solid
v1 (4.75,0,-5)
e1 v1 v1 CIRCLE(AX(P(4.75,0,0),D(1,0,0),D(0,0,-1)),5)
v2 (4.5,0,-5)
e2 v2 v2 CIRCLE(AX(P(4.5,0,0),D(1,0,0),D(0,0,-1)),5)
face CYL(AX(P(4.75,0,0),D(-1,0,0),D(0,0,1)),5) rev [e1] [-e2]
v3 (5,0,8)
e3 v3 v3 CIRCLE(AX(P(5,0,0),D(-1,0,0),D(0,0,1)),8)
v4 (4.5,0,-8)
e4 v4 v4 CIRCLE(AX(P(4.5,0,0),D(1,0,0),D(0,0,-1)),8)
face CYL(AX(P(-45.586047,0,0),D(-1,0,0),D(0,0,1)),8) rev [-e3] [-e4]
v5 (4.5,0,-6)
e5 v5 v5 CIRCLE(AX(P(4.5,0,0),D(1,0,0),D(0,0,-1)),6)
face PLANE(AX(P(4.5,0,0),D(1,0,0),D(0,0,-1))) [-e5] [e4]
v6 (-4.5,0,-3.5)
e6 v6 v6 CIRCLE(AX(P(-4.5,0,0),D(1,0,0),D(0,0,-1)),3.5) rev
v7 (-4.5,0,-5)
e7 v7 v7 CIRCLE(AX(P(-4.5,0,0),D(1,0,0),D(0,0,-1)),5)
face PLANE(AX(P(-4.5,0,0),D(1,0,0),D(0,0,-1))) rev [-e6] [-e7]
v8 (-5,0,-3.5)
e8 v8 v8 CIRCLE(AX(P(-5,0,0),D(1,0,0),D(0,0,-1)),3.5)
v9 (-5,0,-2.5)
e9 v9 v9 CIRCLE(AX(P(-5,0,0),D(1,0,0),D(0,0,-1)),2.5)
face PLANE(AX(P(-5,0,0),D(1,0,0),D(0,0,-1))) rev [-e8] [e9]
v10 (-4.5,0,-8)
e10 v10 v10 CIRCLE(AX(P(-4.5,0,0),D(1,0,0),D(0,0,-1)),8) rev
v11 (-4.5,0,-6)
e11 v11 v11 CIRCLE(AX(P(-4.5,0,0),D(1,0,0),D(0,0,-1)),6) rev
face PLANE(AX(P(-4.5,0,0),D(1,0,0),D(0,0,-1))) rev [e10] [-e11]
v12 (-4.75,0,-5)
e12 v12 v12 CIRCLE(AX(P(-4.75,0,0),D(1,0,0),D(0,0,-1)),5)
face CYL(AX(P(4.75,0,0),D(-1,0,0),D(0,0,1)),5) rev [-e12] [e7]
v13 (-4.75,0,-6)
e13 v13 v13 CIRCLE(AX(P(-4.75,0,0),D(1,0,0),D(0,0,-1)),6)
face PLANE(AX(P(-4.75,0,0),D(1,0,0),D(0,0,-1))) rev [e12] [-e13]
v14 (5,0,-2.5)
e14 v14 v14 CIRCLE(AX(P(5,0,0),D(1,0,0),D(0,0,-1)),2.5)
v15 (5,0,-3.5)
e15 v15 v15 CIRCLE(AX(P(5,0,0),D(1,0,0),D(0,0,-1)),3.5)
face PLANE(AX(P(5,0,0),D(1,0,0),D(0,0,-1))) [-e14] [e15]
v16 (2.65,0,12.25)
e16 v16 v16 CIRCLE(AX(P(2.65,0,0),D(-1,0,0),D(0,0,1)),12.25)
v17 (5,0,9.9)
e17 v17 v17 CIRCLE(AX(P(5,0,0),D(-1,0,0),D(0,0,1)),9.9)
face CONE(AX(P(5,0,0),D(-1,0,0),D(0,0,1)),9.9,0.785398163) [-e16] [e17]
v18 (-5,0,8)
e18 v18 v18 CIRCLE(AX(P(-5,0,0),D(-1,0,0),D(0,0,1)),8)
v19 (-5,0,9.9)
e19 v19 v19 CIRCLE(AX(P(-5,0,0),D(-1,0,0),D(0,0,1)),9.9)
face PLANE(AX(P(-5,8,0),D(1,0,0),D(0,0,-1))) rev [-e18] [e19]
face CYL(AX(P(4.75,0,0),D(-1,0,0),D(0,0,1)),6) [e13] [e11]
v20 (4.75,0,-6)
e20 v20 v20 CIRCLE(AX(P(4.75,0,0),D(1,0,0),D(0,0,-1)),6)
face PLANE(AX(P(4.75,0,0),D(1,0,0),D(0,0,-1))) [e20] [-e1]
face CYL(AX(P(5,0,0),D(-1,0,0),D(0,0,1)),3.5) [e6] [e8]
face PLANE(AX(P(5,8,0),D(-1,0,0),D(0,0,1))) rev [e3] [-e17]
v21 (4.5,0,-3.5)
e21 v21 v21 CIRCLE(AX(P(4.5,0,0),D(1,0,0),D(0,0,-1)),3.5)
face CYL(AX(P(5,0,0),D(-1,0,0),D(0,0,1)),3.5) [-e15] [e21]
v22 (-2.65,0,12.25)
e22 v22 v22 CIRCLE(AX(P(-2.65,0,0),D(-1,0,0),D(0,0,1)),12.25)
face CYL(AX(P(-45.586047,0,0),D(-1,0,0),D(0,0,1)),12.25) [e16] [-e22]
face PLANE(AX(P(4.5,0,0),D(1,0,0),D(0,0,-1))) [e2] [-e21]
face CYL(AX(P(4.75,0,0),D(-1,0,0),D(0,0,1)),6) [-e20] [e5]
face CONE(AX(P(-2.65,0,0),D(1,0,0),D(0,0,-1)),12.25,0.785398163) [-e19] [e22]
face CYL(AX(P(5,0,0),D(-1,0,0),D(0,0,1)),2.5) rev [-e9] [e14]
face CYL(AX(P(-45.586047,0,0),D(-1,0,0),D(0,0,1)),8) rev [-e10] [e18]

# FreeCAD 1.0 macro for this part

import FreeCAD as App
import Part
import Sketcher
from FreeCAD import Vector
Q = App.Units.Quantity


def add_polygon(sketch, points):
    """Adds a closed chain of lines whose ends are joined by coincident constraints."""
    first, n = sketch.GeometryCount, len(points)
    for a, b in zip(points, points[1:] + points[:1]):
        sketch.addGeometry(Part.LineSegment(App.Vector(*a, 0), App.Vector(*b, 0)), False)
    for i in range(n):
        sketch.addConstraint(Sketcher.Constraint("Coincident", first + i, 2, first + (i + 1) % n, 1))

doc = App.newDocument("Part")
params = doc.addObject("Spreadsheet::Sheet", "Params")
for row, (alias, value) in enumerate([
    ("sketch1_width", "10 mm"),
    ("sketch1_width2", "5.3 mm"),
    ("sketch1_height", "1.9 mm"),
    ("revolution_angle", "360 deg"),
    ("sketch2_diameter", "16 mm"),
    ("sketch2_diameter2", "12 mm"),
    ("pad1_length", "9 mm"),
    ("sketch3_diameter", "12 mm"),
    ("sketch3_diameter2", "10 mm"),
    ("pad2_length", "9.5 mm"),
    ("sketch4_diameter", "10 mm"),
    ("sketch4_diameter2", "7 mm"),
    ("pad3_length", "9 mm"),
    ("sketch5_diameter", "7 mm"),
    ("sketch5_diameter2", "5 mm"),
    ("pad4_length", "10 mm"),
], start=1):
    params.set(f"A{row}", alias)
    params.set(f"B{row}", "=" + value)
    params.setAlias(f"B{row}", alias)

body = doc.addObject("PartDesign::Body", "Body")

sketch1 = body.newObject("Sketcher::SketchObject", "Sketch")
sketch1.AttachmentSupport = (doc.getObject("XY_Plane"), [""])
sketch1.MapMode = "FlatFace"
add_polygon(sketch1, [(-5, 9.9), (-5, 8), (5, 8), (5, 9.9), (2.65, 12.25), (-2.65, 12.25)])
sketch1.addConstraint(Sketcher.Constraint("Vertical", 0))
sketch1.addConstraint(Sketcher.Constraint("Horizontal", 1))
sketch1.addConstraint(Sketcher.Constraint("Vertical", 2))
sketch1.addConstraint(Sketcher.Constraint("Horizontal", 4))
sketch1.addConstraint(Sketcher.Constraint("Symmetric", 2, 2, 5, 2, -2))
sketch1.addConstraint(Sketcher.Constraint("Perpendicular", 3, 5))
sketch1.addConstraint(Sketcher.Constraint("Equal", 3, 5))
sketch1.addConstraint(Sketcher.Constraint("DistanceX", 1, 1, 1, 2, Q("10 mm")))
sketch1.addConstraint(Sketcher.Constraint("DistanceX", 4, 2, 4, 1, Q("5.3 mm")))
sketch1.addConstraint(Sketcher.Constraint("DistanceY", 0, 2, 0, 1, Q("1.9 mm")))
sketch1.addConstraint(Sketcher.Constraint("DistanceY", -1, 1, 0, 2, Q("8 mm")))
sketch1.setExpression("Constraints[13]", "Params.sketch1_width")
sketch1.setExpression("Constraints[14]", "Params.sketch1_width2")
sketch1.setExpression("Constraints[15]", "Params.sketch1_height")
revolution = body.newObject("PartDesign::Revolution", "Revolution")
revolution.Profile = sketch1
revolution.ReferenceAxis = (sketch1, ["H_Axis"])
revolution.setExpression("Angle", "Params.revolution_angle")

sketch2 = body.newObject("Sketcher::SketchObject", "Sketch001")
sketch2.AttachmentSupport = (doc.getObject("YZ_Plane"), [""])
sketch2.MapMode = "FlatFace"
sketch2.addGeometry(Part.Circle(Vector(0, 0, 0), Vector(0, 0, 1), 8), False)
sketch2.addGeometry(Part.Circle(Vector(0, 0, 0), Vector(0, 0, 1), 6), False)
sketch2.addConstraint(Sketcher.Constraint("Coincident", 0, 3, -1, 1))
sketch2.addConstraint(Sketcher.Constraint("Coincident", 1, 3, -1, 1))
sketch2.addConstraint(Sketcher.Constraint("Diameter", 0, Q("16 mm")))
sketch2.addConstraint(Sketcher.Constraint("Diameter", 1, Q("12 mm")))
sketch2.setExpression("Constraints[2]", "Params.sketch2_diameter")
sketch2.setExpression("Constraints[3]", "Params.sketch2_diameter2")
pad1 = body.newObject("PartDesign::Pad", "Pad")
pad1.Profile = sketch2
pad1.setExpression("Length", "Params.pad1_length")
pad1.Midplane = True

sketch3 = body.newObject("Sketcher::SketchObject", "Sketch002")
sketch3.AttachmentSupport = (doc.getObject("YZ_Plane"), [""])
sketch3.MapMode = "FlatFace"
sketch3.addGeometry(Part.Circle(Vector(0, 0, 0), Vector(0, 0, 1), 6), False)
sketch3.addGeometry(Part.Circle(Vector(0, 0, 0), Vector(0, 0, 1), 5), False)
sketch3.addConstraint(Sketcher.Constraint("Coincident", 0, 3, -1, 1))
sketch3.addConstraint(Sketcher.Constraint("Coincident", 1, 3, -1, 1))
sketch3.addConstraint(Sketcher.Constraint("Diameter", 0, Q("12 mm")))
sketch3.addConstraint(Sketcher.Constraint("Diameter", 1, Q("10 mm")))
sketch3.setExpression("Constraints[2]", "Params.sketch3_diameter")
sketch3.setExpression("Constraints[3]", "Params.sketch3_diameter2")
pad2 = body.newObject("PartDesign::Pad", "Pad001")
pad2.Profile = sketch3
pad2.setExpression("Length", "Params.pad2_length")
pad2.Midplane = True

sketch4 = body.newObject("Sketcher::SketchObject", "Sketch003")
sketch4.AttachmentSupport = (doc.getObject("YZ_Plane"), [""])
sketch4.MapMode = "FlatFace"
sketch4.addGeometry(Part.Circle(Vector(0, 0, 0), Vector(0, 0, 1), 5), False)
sketch4.addGeometry(Part.Circle(Vector(0, 0, 0), Vector(0, 0, 1), 3.5), False)
sketch4.addConstraint(Sketcher.Constraint("Coincident", 0, 3, -1, 1))
sketch4.addConstraint(Sketcher.Constraint("Coincident", 1, 3, -1, 1))
sketch4.addConstraint(Sketcher.Constraint("Diameter", 0, Q("10 mm")))
sketch4.addConstraint(Sketcher.Constraint("Diameter", 1, Q("7 mm")))
sketch4.setExpression("Constraints[2]", "Params.sketch4_diameter")
sketch4.setExpression("Constraints[3]", "Params.sketch4_diameter2")
pad3 = body.newObject("PartDesign::Pad", "Pad002")
pad3.Profile = sketch4
pad3.setExpression("Length", "Params.pad3_length")
pad3.Midplane = True

sketch5 = body.newObject("Sketcher::SketchObject", "Sketch004")
sketch5.AttachmentSupport = (doc.getObject("YZ_Plane"), [""])
sketch5.MapMode = "FlatFace"
sketch5.addGeometry(Part.Circle(Vector(0, 0, 0), Vector(0, 0, 1), 3.5), False)
sketch5.addGeometry(Part.Circle(Vector(0, 0, 0), Vector(0, 0, 1), 2.5), False)
sketch5.addConstraint(Sketcher.Constraint("Coincident", 0, 3, -1, 1))
sketch5.addConstraint(Sketcher.Constraint("Coincident", 1, 3, -1, 1))
sketch5.addConstraint(Sketcher.Constraint("Diameter", 0, Q("7 mm")))
sketch5.addConstraint(Sketcher.Constraint("Diameter", 1, Q("5 mm")))
sketch5.setExpression("Constraints[2]", "Params.sketch5_diameter")
sketch5.setExpression("Constraints[3]", "Params.sketch5_diameter2")
pad4 = body.newObject("PartDesign::Pad", "Pad003")
pad4.Profile = sketch5
pad4.setExpression("Length", "Params.pad4_length")
pad4.Midplane = True

doc.recompute()
